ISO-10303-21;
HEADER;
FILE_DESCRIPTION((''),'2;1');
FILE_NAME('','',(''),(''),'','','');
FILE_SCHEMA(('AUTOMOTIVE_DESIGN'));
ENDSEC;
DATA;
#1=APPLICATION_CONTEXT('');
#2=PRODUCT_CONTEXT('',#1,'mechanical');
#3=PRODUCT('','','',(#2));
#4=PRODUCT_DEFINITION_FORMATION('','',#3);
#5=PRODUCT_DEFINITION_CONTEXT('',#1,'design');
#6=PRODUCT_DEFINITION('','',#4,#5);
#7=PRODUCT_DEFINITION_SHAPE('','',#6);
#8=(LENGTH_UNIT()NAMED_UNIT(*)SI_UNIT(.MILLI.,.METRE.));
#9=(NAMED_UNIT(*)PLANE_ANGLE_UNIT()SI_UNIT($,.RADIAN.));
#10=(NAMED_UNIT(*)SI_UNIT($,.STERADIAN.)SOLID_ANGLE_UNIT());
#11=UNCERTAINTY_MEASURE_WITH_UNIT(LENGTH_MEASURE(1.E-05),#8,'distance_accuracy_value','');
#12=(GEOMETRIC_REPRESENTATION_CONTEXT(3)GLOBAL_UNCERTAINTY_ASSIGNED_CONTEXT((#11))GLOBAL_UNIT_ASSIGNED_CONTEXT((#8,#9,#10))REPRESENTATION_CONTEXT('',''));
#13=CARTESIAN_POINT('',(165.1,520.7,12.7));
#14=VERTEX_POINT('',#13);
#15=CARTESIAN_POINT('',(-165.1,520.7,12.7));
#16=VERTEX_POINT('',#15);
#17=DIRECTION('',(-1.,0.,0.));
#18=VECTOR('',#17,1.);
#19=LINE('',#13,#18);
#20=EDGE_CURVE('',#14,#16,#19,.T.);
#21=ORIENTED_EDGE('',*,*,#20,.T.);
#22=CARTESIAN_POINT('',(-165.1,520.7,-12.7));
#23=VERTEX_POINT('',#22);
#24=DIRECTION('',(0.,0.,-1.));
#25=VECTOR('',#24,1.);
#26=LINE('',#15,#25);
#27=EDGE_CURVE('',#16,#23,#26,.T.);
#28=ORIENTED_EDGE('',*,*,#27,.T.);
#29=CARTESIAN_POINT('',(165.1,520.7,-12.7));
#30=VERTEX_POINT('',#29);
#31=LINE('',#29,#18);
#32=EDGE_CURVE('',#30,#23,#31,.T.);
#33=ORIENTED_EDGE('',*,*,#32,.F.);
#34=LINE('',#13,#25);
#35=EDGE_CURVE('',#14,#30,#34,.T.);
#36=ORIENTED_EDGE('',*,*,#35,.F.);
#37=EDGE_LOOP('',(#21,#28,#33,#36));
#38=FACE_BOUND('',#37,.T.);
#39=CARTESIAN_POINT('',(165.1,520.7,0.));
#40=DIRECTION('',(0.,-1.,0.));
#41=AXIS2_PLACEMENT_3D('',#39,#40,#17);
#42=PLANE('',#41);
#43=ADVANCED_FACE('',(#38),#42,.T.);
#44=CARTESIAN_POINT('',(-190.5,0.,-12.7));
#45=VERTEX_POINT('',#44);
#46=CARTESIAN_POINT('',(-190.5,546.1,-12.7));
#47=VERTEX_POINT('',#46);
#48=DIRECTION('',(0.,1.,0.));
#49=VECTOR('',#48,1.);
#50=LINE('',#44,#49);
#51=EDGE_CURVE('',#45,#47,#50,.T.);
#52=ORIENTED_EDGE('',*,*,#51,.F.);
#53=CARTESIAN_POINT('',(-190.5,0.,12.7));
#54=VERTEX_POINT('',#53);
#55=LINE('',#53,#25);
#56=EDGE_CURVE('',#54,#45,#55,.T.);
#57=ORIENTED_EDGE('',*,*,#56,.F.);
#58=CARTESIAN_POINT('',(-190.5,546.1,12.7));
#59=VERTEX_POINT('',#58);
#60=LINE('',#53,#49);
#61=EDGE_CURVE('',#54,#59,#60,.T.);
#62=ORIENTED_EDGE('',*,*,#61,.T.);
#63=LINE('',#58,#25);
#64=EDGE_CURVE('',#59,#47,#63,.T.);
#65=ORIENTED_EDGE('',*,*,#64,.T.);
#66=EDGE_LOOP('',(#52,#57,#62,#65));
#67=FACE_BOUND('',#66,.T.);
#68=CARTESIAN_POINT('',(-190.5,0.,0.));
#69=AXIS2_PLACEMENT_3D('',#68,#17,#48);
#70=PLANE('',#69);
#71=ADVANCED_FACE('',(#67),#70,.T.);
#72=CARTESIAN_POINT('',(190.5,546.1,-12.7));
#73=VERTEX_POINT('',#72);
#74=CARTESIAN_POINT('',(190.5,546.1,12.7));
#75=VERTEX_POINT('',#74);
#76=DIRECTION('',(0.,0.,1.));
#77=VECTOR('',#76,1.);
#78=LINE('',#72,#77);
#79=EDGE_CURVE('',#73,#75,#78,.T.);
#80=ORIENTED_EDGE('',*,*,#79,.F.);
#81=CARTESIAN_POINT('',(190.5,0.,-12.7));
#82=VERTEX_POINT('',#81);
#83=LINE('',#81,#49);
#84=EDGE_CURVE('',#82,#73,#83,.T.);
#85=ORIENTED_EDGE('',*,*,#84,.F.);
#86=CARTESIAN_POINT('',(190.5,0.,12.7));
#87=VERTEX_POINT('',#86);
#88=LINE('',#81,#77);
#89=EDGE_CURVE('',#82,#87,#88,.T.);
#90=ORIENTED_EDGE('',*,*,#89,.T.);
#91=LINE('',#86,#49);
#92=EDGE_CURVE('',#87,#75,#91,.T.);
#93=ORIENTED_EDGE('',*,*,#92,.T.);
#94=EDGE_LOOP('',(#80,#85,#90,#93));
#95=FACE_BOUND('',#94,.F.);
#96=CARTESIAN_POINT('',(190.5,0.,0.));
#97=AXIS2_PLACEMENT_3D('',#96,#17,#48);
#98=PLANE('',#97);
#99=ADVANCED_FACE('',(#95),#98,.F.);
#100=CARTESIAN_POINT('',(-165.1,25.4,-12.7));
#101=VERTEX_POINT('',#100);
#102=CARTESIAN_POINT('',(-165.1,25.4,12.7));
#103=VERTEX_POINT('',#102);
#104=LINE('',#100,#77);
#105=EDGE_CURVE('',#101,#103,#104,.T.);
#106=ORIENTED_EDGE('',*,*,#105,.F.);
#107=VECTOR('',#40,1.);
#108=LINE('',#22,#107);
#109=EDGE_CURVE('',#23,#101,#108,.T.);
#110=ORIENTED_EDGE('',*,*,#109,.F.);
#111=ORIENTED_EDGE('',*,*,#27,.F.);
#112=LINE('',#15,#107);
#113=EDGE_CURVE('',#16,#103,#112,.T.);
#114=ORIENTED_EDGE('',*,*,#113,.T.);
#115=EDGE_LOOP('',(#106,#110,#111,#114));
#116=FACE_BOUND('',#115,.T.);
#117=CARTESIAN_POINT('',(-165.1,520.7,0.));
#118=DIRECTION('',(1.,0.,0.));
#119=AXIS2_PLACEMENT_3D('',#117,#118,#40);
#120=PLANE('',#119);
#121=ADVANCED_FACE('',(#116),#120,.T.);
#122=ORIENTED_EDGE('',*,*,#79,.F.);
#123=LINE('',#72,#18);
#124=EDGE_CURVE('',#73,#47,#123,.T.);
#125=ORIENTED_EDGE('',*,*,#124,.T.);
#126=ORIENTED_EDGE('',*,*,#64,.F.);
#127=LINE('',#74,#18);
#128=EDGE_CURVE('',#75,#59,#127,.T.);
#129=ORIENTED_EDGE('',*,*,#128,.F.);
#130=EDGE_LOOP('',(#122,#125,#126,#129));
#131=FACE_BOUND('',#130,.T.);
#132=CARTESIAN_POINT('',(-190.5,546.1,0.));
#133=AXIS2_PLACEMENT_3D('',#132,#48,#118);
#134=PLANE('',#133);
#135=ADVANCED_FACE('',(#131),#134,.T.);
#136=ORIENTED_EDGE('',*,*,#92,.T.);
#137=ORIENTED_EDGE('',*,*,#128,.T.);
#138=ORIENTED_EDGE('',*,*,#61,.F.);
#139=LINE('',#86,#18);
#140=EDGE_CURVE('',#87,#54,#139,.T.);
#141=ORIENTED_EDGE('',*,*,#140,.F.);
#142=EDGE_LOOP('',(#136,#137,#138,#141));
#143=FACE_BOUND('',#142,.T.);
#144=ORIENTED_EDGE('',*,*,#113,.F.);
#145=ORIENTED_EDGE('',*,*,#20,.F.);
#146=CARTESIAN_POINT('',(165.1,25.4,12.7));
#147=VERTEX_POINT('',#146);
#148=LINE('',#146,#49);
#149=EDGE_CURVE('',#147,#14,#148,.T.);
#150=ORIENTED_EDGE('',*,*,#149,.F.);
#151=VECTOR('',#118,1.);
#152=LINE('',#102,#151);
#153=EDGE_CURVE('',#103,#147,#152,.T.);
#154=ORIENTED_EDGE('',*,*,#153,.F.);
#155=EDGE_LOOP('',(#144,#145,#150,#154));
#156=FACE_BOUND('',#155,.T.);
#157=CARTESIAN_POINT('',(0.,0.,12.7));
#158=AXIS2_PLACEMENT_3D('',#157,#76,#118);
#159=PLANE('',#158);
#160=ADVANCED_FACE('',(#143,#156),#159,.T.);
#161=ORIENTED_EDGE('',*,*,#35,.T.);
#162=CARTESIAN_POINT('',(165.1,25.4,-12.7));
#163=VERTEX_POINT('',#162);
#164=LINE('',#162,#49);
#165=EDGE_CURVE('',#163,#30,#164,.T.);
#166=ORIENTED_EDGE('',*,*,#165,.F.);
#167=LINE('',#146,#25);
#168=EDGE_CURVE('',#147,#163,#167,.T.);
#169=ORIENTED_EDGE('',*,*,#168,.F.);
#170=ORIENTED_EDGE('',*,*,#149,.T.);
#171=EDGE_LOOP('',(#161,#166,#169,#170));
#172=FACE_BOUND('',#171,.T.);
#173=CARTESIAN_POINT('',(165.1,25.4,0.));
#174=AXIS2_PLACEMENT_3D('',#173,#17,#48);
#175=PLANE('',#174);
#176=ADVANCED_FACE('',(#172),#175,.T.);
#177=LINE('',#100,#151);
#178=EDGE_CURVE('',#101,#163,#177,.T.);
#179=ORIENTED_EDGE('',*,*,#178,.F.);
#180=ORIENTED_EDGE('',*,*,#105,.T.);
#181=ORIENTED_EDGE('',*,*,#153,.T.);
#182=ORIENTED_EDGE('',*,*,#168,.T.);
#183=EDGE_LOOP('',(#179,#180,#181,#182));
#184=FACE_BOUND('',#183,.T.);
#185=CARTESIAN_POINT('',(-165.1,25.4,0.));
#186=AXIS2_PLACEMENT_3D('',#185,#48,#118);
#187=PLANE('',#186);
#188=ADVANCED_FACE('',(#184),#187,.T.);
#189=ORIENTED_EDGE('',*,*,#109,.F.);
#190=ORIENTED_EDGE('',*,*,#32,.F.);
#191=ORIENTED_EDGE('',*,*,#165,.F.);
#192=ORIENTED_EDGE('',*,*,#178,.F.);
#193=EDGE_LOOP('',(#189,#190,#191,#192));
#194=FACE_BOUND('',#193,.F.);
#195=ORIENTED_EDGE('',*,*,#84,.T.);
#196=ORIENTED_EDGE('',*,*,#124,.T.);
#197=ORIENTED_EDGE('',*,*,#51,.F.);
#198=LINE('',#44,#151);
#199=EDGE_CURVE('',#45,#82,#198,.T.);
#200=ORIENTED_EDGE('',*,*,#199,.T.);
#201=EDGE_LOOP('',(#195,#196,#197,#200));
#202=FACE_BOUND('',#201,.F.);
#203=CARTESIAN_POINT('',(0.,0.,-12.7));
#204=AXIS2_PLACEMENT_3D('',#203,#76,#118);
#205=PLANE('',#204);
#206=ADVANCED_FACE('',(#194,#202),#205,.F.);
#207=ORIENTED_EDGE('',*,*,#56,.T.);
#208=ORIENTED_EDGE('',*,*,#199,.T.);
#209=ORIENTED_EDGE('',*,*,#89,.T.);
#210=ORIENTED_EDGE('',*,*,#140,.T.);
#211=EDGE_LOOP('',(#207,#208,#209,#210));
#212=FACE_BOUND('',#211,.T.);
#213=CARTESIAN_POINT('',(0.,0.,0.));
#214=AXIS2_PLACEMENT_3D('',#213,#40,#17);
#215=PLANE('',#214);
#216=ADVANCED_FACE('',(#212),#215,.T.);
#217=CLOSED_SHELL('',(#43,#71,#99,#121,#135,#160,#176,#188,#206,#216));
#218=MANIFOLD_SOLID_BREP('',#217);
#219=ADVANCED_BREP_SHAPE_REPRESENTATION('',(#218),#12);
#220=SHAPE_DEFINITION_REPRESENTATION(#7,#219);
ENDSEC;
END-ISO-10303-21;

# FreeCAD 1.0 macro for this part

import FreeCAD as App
import Part
import Sketcher

V = App.Vector
Q = App.Units.Quantity


def add_polygon(sketch, points):
    """Adds a closed chain of lines whose ends are joined by coincident constraints."""
    first, n = sketch.GeometryCount, len(points)
    for a, b in zip(points, points[1:] + points[:1]):
        sketch.addGeometry(Part.LineSegment(App.Vector(*a, 0), App.Vector(*b, 0)), False)
    for i in range(n):
        sketch.addConstraint(Sketcher.Constraint("Coincident", first + i, 2, first + (i + 1) % n, 1))

doc = App.newDocument("Part")
params = doc.addObject("Spreadsheet::Sheet", "Params")
for row, (alias, value) in enumerate([
    ("sketch1_width", "15 in"),
    ("sketch1_height", "21.5 in"),
    ("pad1_length", "1 in"),
], start=1):
    params.set(f"A{row}", alias)
    params.set(f"B{row}", "=" + value)
    params.setAlias(f"B{row}", alias)

body = doc.addObject("PartDesign::Body", "Body")

sketch1 = doc.addObject("Sketcher::SketchObject", "Sketch")
body.addObject(sketch1)
sketch1.AttachmentSupport = (doc.XY_Plane, [""])
sketch1.MapMode = "FlatFace"
add_polygon(sketch1, [(-190, 0), (190, 0), (190, 546), (-190, 546)])
add_polygon(sketch1, [(165, 25), (-165, 25), (-165, 521), (165, 521)])
sketch1.addConstraint([
    Sketcher.Constraint("Horizontal", 0),
    Sketcher.Constraint("Vertical", 1),
    Sketcher.Constraint("Horizontal", 2),
    Sketcher.Constraint("Vertical", 3),
    Sketcher.Constraint("Horizontal", 4),
    Sketcher.Constraint("Vertical", 5),
    Sketcher.Constraint("Horizontal", 6),
    Sketcher.Constraint("Vertical", 7),
    Sketcher.Constraint("Symmetric", 0, 2, 3, 2, -1, 1),
    Sketcher.Constraint("DistanceX", 0, 1, 0, 2, Q("15 in")),
    Sketcher.Constraint("DistanceY", 1, 1, 1, 2, Q("21.5 in")),
    Sketcher.Constraint("DistanceY", -1, 1, 4, 2, Q("1 in")),
    Sketcher.Constraint("DistanceX", 3, 2, 4, 2, Q("1 in")),
    Sketcher.Constraint("DistanceY", 5, 2, 2, 2, Q("1 in")),
    Sketcher.Constraint("DistanceX", 6, 2, 1, 2, Q("1 in")),
])
sketch1.setExpression("Constraints[17]", "Params.sketch1_width")
sketch1.setExpression("Constraints[18]", "Params.sketch1_height")
pad1 = doc.addObject("PartDesign::Pad", "Pad")
body.addObject(pad1)
pad1.Profile = sketch1
pad1.setExpression("Length", "Params.pad1_length")
pad1.Midplane = True

doc.recompute()
